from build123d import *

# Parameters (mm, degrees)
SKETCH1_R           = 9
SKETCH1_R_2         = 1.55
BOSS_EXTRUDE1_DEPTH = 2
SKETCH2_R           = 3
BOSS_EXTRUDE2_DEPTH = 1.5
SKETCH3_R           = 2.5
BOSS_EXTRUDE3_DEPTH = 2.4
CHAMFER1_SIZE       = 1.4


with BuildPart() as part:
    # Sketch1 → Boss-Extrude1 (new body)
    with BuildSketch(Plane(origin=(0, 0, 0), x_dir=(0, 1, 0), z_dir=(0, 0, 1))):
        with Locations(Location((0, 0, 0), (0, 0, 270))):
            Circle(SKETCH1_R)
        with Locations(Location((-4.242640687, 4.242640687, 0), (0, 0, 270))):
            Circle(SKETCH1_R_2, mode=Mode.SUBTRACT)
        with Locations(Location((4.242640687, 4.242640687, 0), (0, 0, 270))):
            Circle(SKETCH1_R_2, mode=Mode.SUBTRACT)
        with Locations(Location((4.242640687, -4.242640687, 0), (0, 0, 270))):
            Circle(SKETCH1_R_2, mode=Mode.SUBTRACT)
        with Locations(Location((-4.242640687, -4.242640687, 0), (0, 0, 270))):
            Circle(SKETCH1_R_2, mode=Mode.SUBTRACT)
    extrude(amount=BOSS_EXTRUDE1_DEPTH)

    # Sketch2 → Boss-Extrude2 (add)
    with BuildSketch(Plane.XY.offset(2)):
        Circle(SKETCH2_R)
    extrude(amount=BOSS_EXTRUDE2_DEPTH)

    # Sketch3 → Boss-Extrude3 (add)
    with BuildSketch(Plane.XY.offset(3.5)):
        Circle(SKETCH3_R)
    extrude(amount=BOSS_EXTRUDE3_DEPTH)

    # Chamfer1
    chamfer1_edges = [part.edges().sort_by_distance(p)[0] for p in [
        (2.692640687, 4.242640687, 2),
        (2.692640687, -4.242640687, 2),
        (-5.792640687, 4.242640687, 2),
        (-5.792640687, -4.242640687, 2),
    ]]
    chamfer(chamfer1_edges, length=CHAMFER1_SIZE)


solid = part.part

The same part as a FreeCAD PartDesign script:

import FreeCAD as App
import Part
import Sketcher

V = App.Vector
Q = App.Units.Quantity


def edges_at(feature, points):
    """Names of the edges that pass closest to the given points."""
    edges = feature.Shape.Edges
    near = lambda p: min(range(len(edges)), key=lambda i: edges[i].distToShape(Part.Vertex(*p))[0])
    return sorted({f"Edge{near(p) + 1}" for p in points})

doc = App.newDocument("Part")
params = doc.addObject("Spreadsheet::Sheet", "Params")
for row, (alias, value) in enumerate([
    ("sketch1_diameter", "18 mm"),
    ("sketch1_diameter2", "3.1 mm"),
    ("pad1_length", "2 mm"),
    ("sketch2_diameter", "6 mm"),
    ("pad2_length", "1.5 mm"),
    ("sketch3_diameter", "5 mm"),
    ("pad3_length", "2.4 mm"),
    ("chamfer_size", "1.4 mm"),
], start=1):
    params.set(f"A{row}", alias)
    params.set(f"B{row}", "=" + value)
    params.setAlias(f"B{row}", alias)

body = doc.addObject("PartDesign::Body", "Body")

sketch1 = doc.addObject("Sketcher::SketchObject", "Sketch")
body.addObject(sketch1)
sketch1.AttachmentSupport = (doc.XY_Plane, [""])
sketch1.MapMode = "FlatFace"
sketch1.addGeometry([
    Part.Circle(V(0, 0, 0), V(0, 0, 1), 9),
    Part.Circle(V(-4.242641, -4.242641, 0), V(0, 0, 1), 1.55),
    Part.Circle(V(4.242641, -4.242641, 0), V(0, 0, 1), 1.55),
    Part.Circle(V(-4.242641, 4.242641, 0), V(0, 0, 1), 1.55),
    Part.Circle(V(4.242641, 4.242641, 0), V(0, 0, 1), 1.55),
], False)
sketch1.addConstraint([
    Sketcher.Constraint("Coincident", 0, 3, -1, 1),
    Sketcher.Constraint("Equal", 1, 2),
    Sketcher.Constraint("Equal", 2, 3),
    Sketcher.Constraint("Equal", 3, 4),
    Sketcher.Constraint("Symmetric", 2, 3, 3, 3, -1, 1),
    Sketcher.Constraint("Symmetric", 1, 3, 4, 3, -1, 1),
    Sketcher.Constraint("Symmetric", 1, 3, 2, 3, -2),
    Sketcher.Constraint("Diameter", 0, Q("18 mm")),
    Sketcher.Constraint("Diameter", 1, Q("3.1 mm")),
    Sketcher.Constraint("DistanceX", 1, 3, -1, 1, Q("4.242641 mm")),
    Sketcher.Constraint("DistanceY", 1, 3, -1, 1, Q("4.242641 mm")),
])
sketch1.setExpression("Constraints[7]", "Params.sketch1_diameter")
sketch1.setExpression("Constraints[8]", "Params.sketch1_diameter2")
pad1 = doc.addObject("PartDesign::Pad", "Pad")
body.addObject(pad1)
pad1.Profile = sketch1
pad1.setExpression("Length", "Params.pad1_length")

sketch2 = doc.addObject("Sketcher::SketchObject", "Sketch001")
body.addObject(sketch2)
sketch2.AttachmentSupport = (doc.XY_Plane, [""])
sketch2.MapMode = "FlatFace"
sketch2.AttachmentOffset = App.Placement(V(0, 0, 2), App.Rotation())
sketch2.addGeometry(Part.Circle(V(0, 0, 0), V(0, 0, 1), 3), False)
sketch2.addConstraint([
    Sketcher.Constraint("Coincident", 0, 3, -1, 1),
    Sketcher.Constraint("Diameter", 0, Q("6 mm")),
])
sketch2.setExpression("Constraints[1]", "Params.sketch2_diameter")
pad2 = doc.addObject("PartDesign::Pad", "Pad001")
body.addObject(pad2)
pad2.Profile = sketch2
pad2.setExpression("Length", "Params.pad2_length")

sketch3 = doc.addObject("Sketcher::SketchObject", "Sketch002")
body.addObject(sketch3)
sketch3.AttachmentSupport = (doc.XY_Plane, [""])
sketch3.MapMode = "FlatFace"
sketch3.AttachmentOffset = App.Placement(V(0, 0, 3.5), App.Rotation())
sketch3.addGeometry(Part.Circle(V(0, 0, 0), V(0, 0, 1), 2.5), False)
sketch3.addConstraint([
    Sketcher.Constraint("Coincident", 0, 3, -1, 1),
    Sketcher.Constraint("Diameter", 0, Q("5 mm")),
])
sketch3.setExpression("Constraints[1]", "Params.sketch3_diameter")
pad3 = doc.addObject("PartDesign::Pad", "Pad002")
body.addObject(pad3)
pad3.Profile = sketch3
pad3.setExpression("Length", "Params.pad3_length")
doc.recompute()

chamfer = doc.addObject("PartDesign::Chamfer", "Chamfer")
body.addObject(chamfer)
chamfer.Base = (pad3, edges_at(pad3, [
    (2.693, 4.243, 2),
    (2.693, -4.243, 2),
    (-5.793, 4.243, 2),
    (-5.793, -4.243, 2),
]))
chamfer.setExpression("Size", "Params.chamfer_size")

doc.recompute()
